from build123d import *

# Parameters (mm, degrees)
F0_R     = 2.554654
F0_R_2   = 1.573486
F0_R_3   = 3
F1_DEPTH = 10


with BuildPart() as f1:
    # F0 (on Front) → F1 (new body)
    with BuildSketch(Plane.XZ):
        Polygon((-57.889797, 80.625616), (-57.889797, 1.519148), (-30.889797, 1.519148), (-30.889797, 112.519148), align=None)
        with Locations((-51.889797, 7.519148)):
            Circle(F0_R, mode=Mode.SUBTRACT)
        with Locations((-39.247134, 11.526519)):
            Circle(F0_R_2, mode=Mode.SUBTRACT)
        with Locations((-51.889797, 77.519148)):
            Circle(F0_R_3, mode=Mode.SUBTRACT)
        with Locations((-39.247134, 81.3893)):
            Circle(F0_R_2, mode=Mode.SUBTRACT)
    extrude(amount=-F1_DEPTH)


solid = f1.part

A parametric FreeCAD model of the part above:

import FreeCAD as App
import Part
import Sketcher
from FreeCAD import Vector


def add_polygon(sketch, points):
    """Adds a closed chain of lines whose ends are joined by coincident constraints."""
    first, n = sketch.GeometryCount, len(points)
    for a, b in zip(points, points[1:] + points[:1]):
        sketch.addGeometry(Part.LineSegment(App.Vector(*a, 0), App.Vector(*b, 0)), False)
    for i in range(n):
        sketch.addConstraint(Sketcher.Constraint("Coincident", first + i, 2, first + (i + 1) % n, 1))

doc = App.newDocument("Part")
params = doc.addObject("Spreadsheet::Sheet", "Params")
for row, (alias, value) in enumerate([
    ("sketch1_diameter", "6 mm"),
    ("sketch1_width", "27 mm"),
    ("sketch1_height", "111 mm"),
    ("pad1_length", "10 mm"),
], start=1):
    params.set(f"A{row}", alias)
    params.set(f"B{row}", "=" + value)
    params.setAlias(f"B{row}", alias)

body = doc.addObject("PartDesign::Body", "Body")

# Sketch on XZ plane
sketch1 = body.newObject("Sketcher::SketchObject", "Sketch")
sketch1.AttachmentSupport = (doc.getObject("XZ_Plane"), [""])
sketch1.MapMode = "FlatFace"
add_polygon(sketch1, [(-57.889797, 80.625616), (-57.889797, 1.519148), (-30.889797, 1.519148), (-30.889797, 112.519148)])  # lines 0-3
sketch1.addGeometry(Part.Circle(Vector(-51.889797, 7.519148, 0), Vector(0, 0, 1), 2.554654), False)  # 4
sketch1.addGeometry(Part.Circle(Vector(-39.247134, 11.526519, 0), Vector(0, 0, 1), 1.573486), False)  # 5
sketch1.addGeometry(Part.Circle(Vector(-51.889797, 77.519148, 0), Vector(0, 0, 1), 3), False)  # 6
sketch1.addGeometry(Part.Circle(Vector(-39.247134, 81.3893, 0), Vector(0, 0, 1), 1.573486), False)  # 7
sketch1.addConstraint([
    Sketcher.Constraint("Vertical", 0),
    Sketcher.Constraint("Horizontal", 1),
    Sketcher.Constraint("Vertical", 2),
    Sketcher.Constraint("Equal", 5, 7),
    Sketcher.Constraint("Vertical", 4, 3, 6, 3),
    Sketcher.Constraint("Vertical", 5, 3, 7, 3),
    Sketcher.Constraint("Diameter", 6, 6.0),
    Sketcher.Constraint("DistanceX", 1, 1, 1, 2, 27.0),
    Sketcher.Constraint("DistanceY", 2, 1, 2, 2, 111.0),
    Sketcher.Constraint("DistanceY", 4, 3, 6, 3, 70.0),
    Sketcher.Constraint("DistanceX", 0, 2, 4, 3, 6.0),
    Sketcher.Constraint("DistanceY", 0, 2, 4, 3, 6.0),
    Sketcher.Constraint("Diameter", 4, 5.109308),
    Sketcher.Constraint("Diameter", 5, 3.146972),
    Sketcher.Constraint("DistanceY", -1, 1, 7, 3, 81.3893),
    Sketcher.Constraint("DistanceY", 0, 2, 0, 1, 79.106468),
    Sketcher.Constraint("DistanceY", -1, 1, 4, 3, 7.519148),
    Sketcher.Constraint("DistanceY", -1, 1, 5, 3, 11.526519),
    Sketcher.Constraint("DistanceX", 4, 3, -1, 1, 51.889797),
    Sketcher.Constraint("DistanceX", 5, 3, -1, 1, 39.247134),
])
sketch1.setExpression("Constraints[10]", "Params.sketch1_diameter")
sketch1.setExpression("Constraints[11]", "Params.sketch1_width")
sketch1.setExpression("Constraints[12]", "Params.sketch1_height")
pad1 = body.newObject("PartDesign::Pad", "Pad")
pad1.Profile = sketch1
pad1.setExpression("Length", "Params.pad1_length")
pad1.Reversed = True

doc.recompute()
